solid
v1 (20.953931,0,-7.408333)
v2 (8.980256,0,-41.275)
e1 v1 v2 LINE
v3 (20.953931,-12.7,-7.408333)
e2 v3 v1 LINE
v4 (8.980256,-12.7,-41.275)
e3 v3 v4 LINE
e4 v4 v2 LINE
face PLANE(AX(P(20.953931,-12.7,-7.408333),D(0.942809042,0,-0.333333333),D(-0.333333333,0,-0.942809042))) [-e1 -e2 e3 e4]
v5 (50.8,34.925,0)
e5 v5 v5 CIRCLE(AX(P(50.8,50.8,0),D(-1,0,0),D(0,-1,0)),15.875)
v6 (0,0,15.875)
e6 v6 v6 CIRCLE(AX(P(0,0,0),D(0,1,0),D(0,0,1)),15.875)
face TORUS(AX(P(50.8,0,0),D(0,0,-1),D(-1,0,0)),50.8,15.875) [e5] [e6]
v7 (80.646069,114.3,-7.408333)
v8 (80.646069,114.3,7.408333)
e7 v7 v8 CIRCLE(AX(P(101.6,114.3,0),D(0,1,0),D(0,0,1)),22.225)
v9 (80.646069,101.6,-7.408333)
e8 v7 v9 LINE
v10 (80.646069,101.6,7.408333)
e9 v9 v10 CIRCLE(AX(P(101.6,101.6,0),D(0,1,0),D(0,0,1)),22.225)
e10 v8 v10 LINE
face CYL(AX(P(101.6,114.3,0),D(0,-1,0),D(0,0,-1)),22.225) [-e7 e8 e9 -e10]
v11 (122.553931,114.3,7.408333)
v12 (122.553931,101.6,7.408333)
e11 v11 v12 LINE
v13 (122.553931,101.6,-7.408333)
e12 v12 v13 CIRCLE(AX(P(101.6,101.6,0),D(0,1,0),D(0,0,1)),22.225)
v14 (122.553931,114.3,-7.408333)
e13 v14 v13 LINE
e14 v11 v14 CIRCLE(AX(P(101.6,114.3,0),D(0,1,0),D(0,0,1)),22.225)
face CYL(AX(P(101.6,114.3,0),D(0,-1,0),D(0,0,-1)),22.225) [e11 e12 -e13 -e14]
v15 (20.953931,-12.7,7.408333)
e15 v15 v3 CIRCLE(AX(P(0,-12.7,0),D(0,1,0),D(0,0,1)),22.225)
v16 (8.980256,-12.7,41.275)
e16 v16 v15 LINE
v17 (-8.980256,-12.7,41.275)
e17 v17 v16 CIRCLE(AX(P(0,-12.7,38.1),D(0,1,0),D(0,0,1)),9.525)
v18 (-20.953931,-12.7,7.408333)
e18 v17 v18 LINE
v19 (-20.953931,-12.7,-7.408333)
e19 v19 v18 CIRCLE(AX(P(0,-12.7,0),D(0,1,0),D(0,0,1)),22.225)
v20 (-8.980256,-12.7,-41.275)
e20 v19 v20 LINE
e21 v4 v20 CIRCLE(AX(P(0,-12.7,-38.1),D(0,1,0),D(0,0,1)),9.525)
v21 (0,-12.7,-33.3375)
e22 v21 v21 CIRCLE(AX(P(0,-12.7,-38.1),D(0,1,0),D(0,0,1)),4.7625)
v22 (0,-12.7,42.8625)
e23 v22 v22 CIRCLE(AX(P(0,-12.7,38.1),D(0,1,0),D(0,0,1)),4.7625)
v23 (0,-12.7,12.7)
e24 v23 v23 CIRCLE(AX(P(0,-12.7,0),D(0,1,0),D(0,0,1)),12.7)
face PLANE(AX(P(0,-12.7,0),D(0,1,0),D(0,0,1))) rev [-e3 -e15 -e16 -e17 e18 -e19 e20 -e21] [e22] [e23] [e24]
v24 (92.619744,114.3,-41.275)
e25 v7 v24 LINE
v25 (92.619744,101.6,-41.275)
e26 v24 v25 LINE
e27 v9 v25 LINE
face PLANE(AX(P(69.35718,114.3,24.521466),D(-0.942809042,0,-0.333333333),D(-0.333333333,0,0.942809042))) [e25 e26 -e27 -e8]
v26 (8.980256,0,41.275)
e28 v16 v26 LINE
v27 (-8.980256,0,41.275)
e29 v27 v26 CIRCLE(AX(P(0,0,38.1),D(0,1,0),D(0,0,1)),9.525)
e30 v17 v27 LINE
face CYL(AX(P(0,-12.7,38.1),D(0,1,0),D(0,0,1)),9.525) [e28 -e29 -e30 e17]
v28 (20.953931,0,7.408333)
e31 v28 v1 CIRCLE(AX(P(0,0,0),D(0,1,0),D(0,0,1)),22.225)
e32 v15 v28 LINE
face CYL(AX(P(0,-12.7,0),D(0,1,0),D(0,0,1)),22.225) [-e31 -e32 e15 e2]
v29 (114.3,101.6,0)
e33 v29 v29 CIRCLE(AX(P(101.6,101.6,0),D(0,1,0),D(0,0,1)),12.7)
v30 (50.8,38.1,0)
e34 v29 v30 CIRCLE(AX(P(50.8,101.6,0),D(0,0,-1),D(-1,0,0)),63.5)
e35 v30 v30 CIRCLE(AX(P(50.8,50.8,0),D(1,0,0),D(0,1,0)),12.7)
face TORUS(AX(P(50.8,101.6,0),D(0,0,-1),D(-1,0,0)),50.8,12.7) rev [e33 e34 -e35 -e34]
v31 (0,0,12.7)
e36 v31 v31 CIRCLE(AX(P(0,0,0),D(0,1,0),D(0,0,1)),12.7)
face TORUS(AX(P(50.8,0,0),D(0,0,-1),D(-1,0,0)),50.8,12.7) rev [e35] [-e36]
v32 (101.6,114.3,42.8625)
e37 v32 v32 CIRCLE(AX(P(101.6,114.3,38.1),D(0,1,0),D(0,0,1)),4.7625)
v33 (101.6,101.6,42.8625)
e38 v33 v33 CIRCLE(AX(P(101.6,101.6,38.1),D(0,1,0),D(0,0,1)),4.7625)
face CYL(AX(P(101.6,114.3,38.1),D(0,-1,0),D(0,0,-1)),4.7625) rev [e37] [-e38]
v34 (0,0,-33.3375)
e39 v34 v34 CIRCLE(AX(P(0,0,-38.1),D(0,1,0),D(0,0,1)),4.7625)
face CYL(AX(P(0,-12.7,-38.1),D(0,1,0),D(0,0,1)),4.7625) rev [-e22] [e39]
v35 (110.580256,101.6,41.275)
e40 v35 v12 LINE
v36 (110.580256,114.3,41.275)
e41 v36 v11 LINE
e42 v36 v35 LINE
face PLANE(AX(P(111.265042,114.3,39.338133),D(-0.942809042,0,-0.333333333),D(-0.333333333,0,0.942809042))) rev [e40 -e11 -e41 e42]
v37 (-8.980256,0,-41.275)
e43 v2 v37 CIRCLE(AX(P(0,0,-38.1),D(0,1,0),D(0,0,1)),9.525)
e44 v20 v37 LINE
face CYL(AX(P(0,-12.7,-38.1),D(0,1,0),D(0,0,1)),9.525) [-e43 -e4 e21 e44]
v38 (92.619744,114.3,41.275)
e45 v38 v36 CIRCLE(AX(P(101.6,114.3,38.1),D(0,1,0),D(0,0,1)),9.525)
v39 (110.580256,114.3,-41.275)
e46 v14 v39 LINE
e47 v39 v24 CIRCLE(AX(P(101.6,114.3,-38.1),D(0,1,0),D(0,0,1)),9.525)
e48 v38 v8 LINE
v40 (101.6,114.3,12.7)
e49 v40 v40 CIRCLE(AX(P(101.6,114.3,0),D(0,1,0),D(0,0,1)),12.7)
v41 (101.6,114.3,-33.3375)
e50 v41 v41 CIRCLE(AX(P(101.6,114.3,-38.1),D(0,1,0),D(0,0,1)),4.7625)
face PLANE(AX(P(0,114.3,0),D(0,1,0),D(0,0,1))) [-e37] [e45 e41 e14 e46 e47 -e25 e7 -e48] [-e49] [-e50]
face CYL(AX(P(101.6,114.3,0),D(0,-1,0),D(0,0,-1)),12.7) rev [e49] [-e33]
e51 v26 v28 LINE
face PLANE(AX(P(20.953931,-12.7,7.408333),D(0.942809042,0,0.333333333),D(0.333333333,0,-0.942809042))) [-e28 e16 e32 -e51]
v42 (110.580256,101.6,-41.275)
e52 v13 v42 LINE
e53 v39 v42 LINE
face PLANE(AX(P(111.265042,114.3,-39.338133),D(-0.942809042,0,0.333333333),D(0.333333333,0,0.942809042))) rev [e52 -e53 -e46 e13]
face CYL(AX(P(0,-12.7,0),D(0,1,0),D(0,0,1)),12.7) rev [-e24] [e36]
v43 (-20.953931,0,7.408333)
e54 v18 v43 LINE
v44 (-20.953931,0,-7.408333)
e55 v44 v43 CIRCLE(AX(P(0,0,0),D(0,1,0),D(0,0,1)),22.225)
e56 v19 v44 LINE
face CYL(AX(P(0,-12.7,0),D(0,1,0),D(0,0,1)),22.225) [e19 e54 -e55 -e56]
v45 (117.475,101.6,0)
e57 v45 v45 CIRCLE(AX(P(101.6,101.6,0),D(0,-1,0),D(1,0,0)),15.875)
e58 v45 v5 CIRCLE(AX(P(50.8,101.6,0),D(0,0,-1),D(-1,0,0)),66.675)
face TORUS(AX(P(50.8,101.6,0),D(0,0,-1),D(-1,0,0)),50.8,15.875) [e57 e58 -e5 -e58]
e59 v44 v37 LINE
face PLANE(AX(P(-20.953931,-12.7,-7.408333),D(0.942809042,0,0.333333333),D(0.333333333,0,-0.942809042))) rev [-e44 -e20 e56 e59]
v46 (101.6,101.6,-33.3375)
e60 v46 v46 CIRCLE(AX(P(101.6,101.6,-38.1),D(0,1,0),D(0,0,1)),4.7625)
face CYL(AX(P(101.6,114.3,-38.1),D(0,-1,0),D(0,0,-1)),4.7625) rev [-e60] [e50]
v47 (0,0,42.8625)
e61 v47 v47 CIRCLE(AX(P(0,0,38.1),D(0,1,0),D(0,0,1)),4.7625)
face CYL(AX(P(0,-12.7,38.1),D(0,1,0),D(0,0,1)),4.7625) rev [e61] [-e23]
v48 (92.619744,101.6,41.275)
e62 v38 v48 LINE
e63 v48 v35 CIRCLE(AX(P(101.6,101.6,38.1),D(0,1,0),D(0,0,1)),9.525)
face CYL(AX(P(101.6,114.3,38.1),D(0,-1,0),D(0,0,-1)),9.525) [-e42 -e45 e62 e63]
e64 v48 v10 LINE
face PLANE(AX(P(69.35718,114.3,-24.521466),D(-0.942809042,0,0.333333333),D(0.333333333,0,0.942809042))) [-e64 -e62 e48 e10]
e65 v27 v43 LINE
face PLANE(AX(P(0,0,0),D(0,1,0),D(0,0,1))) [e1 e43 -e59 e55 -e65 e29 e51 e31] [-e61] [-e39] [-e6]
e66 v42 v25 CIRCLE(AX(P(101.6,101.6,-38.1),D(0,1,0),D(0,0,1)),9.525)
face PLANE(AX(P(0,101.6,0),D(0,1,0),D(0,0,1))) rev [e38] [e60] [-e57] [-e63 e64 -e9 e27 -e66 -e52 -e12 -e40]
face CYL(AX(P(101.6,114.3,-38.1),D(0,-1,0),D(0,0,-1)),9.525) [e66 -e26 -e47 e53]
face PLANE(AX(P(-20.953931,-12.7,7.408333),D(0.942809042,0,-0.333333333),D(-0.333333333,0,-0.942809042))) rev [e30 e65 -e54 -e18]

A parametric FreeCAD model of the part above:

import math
import FreeCAD as App
import Part
import Sketcher

V = App.Vector
Q = App.Units.Quantity

doc = App.newDocument("Part")
body = doc.addObject("PartDesign::Body", "Body")

# Sketch on XZ plane
sketch1 = body.newObject("Sketcher::SketchObject", "Sketch")
sketch1.AttachmentSupport = (doc.getObject("XZ_Plane"), [""])
sketch1.MapMode = "FlatFace"
sketch1.addGeometry([
    Part.LineSegment(V(-9, -41.3, 0), V(-21, -7.4, 0)),  # 0
    Part.ArcOfCircle(Part.Circle(V(0, 0, 0), V(0, 0, 1), 22.2), math.radians(161), math.radians(199)),  # 1
    Part.LineSegment(V(-21, 7.4, 0), V(-9, 41.3, 0)),  # 2
    Part.ArcOfCircle(Part.Circle(V(0, 38.1, 0), V(0, 0, 1), 9.5), math.radians(19), math.radians(161)),  # 3
    Part.LineSegment(V(9, 41.3, 0), V(21, 7.4, 0)),  # 4
    Part.ArcOfCircle(Part.Circle(V(0, 0, 0), V(0, 0, 1), 22.2), math.radians(-19), math.radians(19)),  # 5
    Part.LineSegment(V(21, -7.4, 0), V(9, -41.3, 0)),  # 6
    Part.ArcOfCircle(Part.Circle(V(0, -38.1, 0), V(0, 0, 1), 9.5), math.radians(-161), math.radians(-19)),  # 7
    Part.Circle(V(0, 38.1, 0), V(0, 0, 1), 4.8),  # 8
    Part.Circle(V(0, -38.1, 0), V(0, 0, 1), 4.8),  # 9
    Part.Circle(V(0, 0, 0), V(0, 0, 1), 12.7),  # 10
], False)
sketch1.addConstraint([
    Sketcher.Constraint("Tangent", 0, 2, 1, 2),
    Sketcher.Constraint("Tangent", 1, 1, 2, 1),
    Sketcher.Constraint("Tangent", 2, 2, 3, 2),
    Sketcher.Constraint("Tangent", 3, 1, 4, 1),
    Sketcher.Constraint("Tangent", 4, 2, 5, 2),
    Sketcher.Constraint("Tangent", 5, 1, 6, 1),
    Sketcher.Constraint("Tangent", 6, 2, 7, 2),
    Sketcher.Constraint("Tangent", 7, 1, 0, 1),
    Sketcher.Constraint("Coincident", 1, 3, -1, 1),
    Sketcher.Constraint("Coincident", 5, 3, -1, 1),
    Sketcher.Constraint("Coincident", 10, 3, -1, 1),
    Sketcher.Constraint("Coincident", 8, 3, 3, 3),
    Sketcher.Constraint("Coincident", 9, 3, 7, 3),
    Sketcher.Constraint("Equal", 1, 5),
    Sketcher.Constraint("Equal", 3, 7),
    Sketcher.Constraint("Equal", 8, 9),
    Sketcher.Constraint("Symmetric", 3, 3, 7, 3, -1, 1),
    Sketcher.Constraint("PointOnObject", 3, 3, -2),
    Sketcher.Constraint("Diameter", 10, Q("1 in")),
    Sketcher.Constraint("Diameter", 8, Q("0.375 in")),
    Sketcher.Constraint("Radius", 1, Q("0.875 in")),
    Sketcher.Constraint("Radius", 3, Q("0.375 in")),
    Sketcher.Constraint("DistanceY", 7, 3, 3, 3, Q("3 in")),
])
pad1 = body.newObject("PartDesign::Pad", "Pad")
pad1.Profile = sketch1
pad1.Length = Q("0.5 in")

# Sketch on XZ plane
sketch2 = body.newObject("Sketcher::SketchObject", "Sketch001")
sketch2.AttachmentSupport = (doc.getObject("XZ_Plane"), [""])
sketch2.MapMode = "FlatFace"
sketch2.addGeometry([
    Part.Circle(V(0, 0, 0), V(0, 0, 1), 16),
    Part.Circle(V(0, 0, 0), V(0, 0, 1), 13),
], False)
sketch2.addConstraint([
    Sketcher.Constraint("Coincident", 0, 3, -1, 1),
    Sketcher.Constraint("Coincident", 1, 3, -1, 1),
    Sketcher.Constraint("Diameter", 1, Q("1 in")),
    Sketcher.Constraint("Diameter", 0, Q("1.25 in")),
])

# Sketch on XY plane
sketch3 = body.newObject("Sketcher::SketchObject", "Sketch002")
sketch3.AttachmentSupport = (doc.getObject("XY_Plane"), [""])
sketch3.MapMode = "FlatFace"
sketch3.addGeometry(Part.ArcOfCircle(Part.Circle(V(51, 0, 0), V(0, 0, 1), 51), math.radians(90), math.radians(180)), False)
sketch3.addConstraint([
    Sketcher.Constraint("Coincident", 0, 2, -1, 1),
    Sketcher.Constraint("PointOnObject", 0, 3, -1),
    Sketcher.Constraint("Radius", 0, Q("2 in")),
    Sketcher.Constraint("DistanceX", -1, 1, 0, 1, Q("2 in")),
])
doc.recompute()

additivepipe = body.newObject("PartDesign::AdditivePipe", "AdditivePipe")
additivepipe.Profile = sketch2
additivepipe.Spine = (sketch3, ["Edge1"])
body2 = doc.addObject("PartDesign::Body", "Body001")

# Sketch on XZ plane
sketch4 = body2.newObject("Sketcher::SketchObject", "Sketch003")
sketch4.AttachmentSupport = (doc.getObject("XZ_Plane001"), [""])
sketch4.MapMode = "FlatFace"
sketch4.AttachmentOffset = App.Placement(V(0, 0, -4 * 25.4), App.Rotation())
sketch4.addGeometry([
    Part.LineSegment(V(92.6, -41.3, 0), V(80.6, -7.4, 0)),  # 0
    Part.ArcOfCircle(Part.Circle(V(101.6, 0, 0), V(0, 0, 1), 22.2), math.radians(161), math.radians(199)),  # 1
    Part.LineSegment(V(80.6, 7.4, 0), V(92.6, 41.3, 0)),  # 2
    Part.ArcOfCircle(Part.Circle(V(101.6, 38.1, 0), V(0, 0, 1), 9.5), math.radians(19), math.radians(161)),  # 3
    Part.LineSegment(V(110.6, 41.3, 0), V(122.6, 7.4, 0)),  # 4
    Part.ArcOfCircle(Part.Circle(V(101.6, 0, 0), V(0, 0, 1), 22.2), math.radians(-19), math.radians(19)),  # 5
    Part.LineSegment(V(122.6, -7.4, 0), V(110.6, -41.3, 0)),  # 6
    Part.ArcOfCircle(Part.Circle(V(101.6, -38.1, 0), V(0, 0, 1), 9.5), math.radians(-161), math.radians(-19)),  # 7
    Part.Circle(V(101.6, 38.1, 0), V(0, 0, 1), 4.8),  # 8
    Part.Circle(V(101.6, -38.1, 0), V(0, 0, 1), 4.8),  # 9
    Part.Circle(V(101.6, 0, 0), V(0, 0, 1), 12.7),  # 10
], False)
sketch4.addConstraint([
    Sketcher.Constraint("Tangent", 0, 2, 1, 2),
    Sketcher.Constraint("Tangent", 1, 1, 2, 1),
    Sketcher.Constraint("Tangent", 2, 2, 3, 2),
    Sketcher.Constraint("Tangent", 3, 1, 4, 1),
    Sketcher.Constraint("Tangent", 4, 2, 5, 2),
    Sketcher.Constraint("Tangent", 5, 1, 6, 1),
    Sketcher.Constraint("Tangent", 6, 2, 7, 2),
    Sketcher.Constraint("Tangent", 7, 1, 0, 1),
    Sketcher.Constraint("Coincident", 5, 3, 1, 3),
    Sketcher.Constraint("Coincident", 8, 3, 3, 3),
    Sketcher.Constraint("Coincident", 9, 3, 7, 3),
    Sketcher.Constraint("Coincident", 10, 3, 1, 3),
    Sketcher.Constraint("Equal", 1, 5),
    Sketcher.Constraint("Equal", 3, 7),
    Sketcher.Constraint("Equal", 8, 9),
    Sketcher.Constraint("Symmetric", 3, 3, 7, 3, -1),
    Sketcher.Constraint("PointOnObject", 1, 3, -1),
    Sketcher.Constraint("Parallel", 0, 4),
    Sketcher.Constraint("Diameter", 10, Q("1 in")),
    Sketcher.Constraint("Diameter", 8, Q("0.375 in")),
    Sketcher.Constraint("DistanceX", -1, 1, 1, 3, Q("4 in")),
    Sketcher.Constraint("Radius", 1, Q("0.875 in")),
    Sketcher.Constraint("Radius", 3, Q("0.375 in")),
    Sketcher.Constraint("DistanceY", 7, 3, 3, 3, Q("3 in")),
])
pad2 = body2.newObject("PartDesign::Pad", "Pad001")
pad2.Profile = sketch4
pad2.Length = Q("0.5 in")
pad2.Reversed = True
body.AllowCompound = True
doc.recompute()

boolean = body.newObject("PartDesign::Boolean", "Boolean")
boolean.Type = "Fuse"
boolean.addObjects([body2])

# Sketch on XZ plane
sketch5 = body.newObject("Sketcher::SketchObject", "Sketch004")
sketch5.AttachmentSupport = (doc.getObject("XZ_Plane"), [""])
sketch5.MapMode = "FlatFace"
sketch5.AttachmentOffset = App.Placement(V(0, 0, -4 * 25.4), App.Rotation())
sketch5.addGeometry([
    Part.Circle(V(102, 0, 0), V(0, 0, 1), 16),
    Part.Circle(V(102, 0, 0), V(0, 0, 1), 13),
], False)
sketch5.addConstraint([
    Sketcher.Constraint("Coincident", 1, 3, 0, 3),
    Sketcher.Constraint("PointOnObject", 0, 3, -1),
    Sketcher.Constraint("Diameter", 1, Q("1 in")),
    Sketcher.Constraint("Diameter", 0, Q("1.25 in")),
    Sketcher.Constraint("DistanceX", -1, 1, 0, 3, Q("4 in")),
])

# Sketch on XY plane
sketch6 = body.newObject("Sketcher::SketchObject", "Sketch005")
sketch6.AttachmentSupport = (doc.getObject("XY_Plane"), [""])
sketch6.MapMode = "FlatFace"
sketch6.addGeometry(Part.ArcOfCircle(Part.Circle(V(51, 102, 0), V(0, 0, 1), 51), math.radians(-90), math.radians(0)), False)
sketch6.addConstraint([
    Sketcher.Constraint("Radius", 0, Q("2 in")),
    Sketcher.Constraint("DistanceX", -1, 1, 0, 3, Q("2 in")),
    Sketcher.Constraint("DistanceY", -1, 1, 0, 3, Q("4 in")),
    Sketcher.Constraint("DistanceX", -1, 1, 0, 1, Q("2 in")),
    Sketcher.Constraint("DistanceY", -1, 1, 0, 2, Q("4 in")),
])
doc.recompute()

additivepipe2 = body.newObject("PartDesign::AdditivePipe", "AdditivePipe001")
additivepipe2.Profile = sketch5
additivepipe2.Spine = (sketch6, ["Edge1"])

doc.recompute()
